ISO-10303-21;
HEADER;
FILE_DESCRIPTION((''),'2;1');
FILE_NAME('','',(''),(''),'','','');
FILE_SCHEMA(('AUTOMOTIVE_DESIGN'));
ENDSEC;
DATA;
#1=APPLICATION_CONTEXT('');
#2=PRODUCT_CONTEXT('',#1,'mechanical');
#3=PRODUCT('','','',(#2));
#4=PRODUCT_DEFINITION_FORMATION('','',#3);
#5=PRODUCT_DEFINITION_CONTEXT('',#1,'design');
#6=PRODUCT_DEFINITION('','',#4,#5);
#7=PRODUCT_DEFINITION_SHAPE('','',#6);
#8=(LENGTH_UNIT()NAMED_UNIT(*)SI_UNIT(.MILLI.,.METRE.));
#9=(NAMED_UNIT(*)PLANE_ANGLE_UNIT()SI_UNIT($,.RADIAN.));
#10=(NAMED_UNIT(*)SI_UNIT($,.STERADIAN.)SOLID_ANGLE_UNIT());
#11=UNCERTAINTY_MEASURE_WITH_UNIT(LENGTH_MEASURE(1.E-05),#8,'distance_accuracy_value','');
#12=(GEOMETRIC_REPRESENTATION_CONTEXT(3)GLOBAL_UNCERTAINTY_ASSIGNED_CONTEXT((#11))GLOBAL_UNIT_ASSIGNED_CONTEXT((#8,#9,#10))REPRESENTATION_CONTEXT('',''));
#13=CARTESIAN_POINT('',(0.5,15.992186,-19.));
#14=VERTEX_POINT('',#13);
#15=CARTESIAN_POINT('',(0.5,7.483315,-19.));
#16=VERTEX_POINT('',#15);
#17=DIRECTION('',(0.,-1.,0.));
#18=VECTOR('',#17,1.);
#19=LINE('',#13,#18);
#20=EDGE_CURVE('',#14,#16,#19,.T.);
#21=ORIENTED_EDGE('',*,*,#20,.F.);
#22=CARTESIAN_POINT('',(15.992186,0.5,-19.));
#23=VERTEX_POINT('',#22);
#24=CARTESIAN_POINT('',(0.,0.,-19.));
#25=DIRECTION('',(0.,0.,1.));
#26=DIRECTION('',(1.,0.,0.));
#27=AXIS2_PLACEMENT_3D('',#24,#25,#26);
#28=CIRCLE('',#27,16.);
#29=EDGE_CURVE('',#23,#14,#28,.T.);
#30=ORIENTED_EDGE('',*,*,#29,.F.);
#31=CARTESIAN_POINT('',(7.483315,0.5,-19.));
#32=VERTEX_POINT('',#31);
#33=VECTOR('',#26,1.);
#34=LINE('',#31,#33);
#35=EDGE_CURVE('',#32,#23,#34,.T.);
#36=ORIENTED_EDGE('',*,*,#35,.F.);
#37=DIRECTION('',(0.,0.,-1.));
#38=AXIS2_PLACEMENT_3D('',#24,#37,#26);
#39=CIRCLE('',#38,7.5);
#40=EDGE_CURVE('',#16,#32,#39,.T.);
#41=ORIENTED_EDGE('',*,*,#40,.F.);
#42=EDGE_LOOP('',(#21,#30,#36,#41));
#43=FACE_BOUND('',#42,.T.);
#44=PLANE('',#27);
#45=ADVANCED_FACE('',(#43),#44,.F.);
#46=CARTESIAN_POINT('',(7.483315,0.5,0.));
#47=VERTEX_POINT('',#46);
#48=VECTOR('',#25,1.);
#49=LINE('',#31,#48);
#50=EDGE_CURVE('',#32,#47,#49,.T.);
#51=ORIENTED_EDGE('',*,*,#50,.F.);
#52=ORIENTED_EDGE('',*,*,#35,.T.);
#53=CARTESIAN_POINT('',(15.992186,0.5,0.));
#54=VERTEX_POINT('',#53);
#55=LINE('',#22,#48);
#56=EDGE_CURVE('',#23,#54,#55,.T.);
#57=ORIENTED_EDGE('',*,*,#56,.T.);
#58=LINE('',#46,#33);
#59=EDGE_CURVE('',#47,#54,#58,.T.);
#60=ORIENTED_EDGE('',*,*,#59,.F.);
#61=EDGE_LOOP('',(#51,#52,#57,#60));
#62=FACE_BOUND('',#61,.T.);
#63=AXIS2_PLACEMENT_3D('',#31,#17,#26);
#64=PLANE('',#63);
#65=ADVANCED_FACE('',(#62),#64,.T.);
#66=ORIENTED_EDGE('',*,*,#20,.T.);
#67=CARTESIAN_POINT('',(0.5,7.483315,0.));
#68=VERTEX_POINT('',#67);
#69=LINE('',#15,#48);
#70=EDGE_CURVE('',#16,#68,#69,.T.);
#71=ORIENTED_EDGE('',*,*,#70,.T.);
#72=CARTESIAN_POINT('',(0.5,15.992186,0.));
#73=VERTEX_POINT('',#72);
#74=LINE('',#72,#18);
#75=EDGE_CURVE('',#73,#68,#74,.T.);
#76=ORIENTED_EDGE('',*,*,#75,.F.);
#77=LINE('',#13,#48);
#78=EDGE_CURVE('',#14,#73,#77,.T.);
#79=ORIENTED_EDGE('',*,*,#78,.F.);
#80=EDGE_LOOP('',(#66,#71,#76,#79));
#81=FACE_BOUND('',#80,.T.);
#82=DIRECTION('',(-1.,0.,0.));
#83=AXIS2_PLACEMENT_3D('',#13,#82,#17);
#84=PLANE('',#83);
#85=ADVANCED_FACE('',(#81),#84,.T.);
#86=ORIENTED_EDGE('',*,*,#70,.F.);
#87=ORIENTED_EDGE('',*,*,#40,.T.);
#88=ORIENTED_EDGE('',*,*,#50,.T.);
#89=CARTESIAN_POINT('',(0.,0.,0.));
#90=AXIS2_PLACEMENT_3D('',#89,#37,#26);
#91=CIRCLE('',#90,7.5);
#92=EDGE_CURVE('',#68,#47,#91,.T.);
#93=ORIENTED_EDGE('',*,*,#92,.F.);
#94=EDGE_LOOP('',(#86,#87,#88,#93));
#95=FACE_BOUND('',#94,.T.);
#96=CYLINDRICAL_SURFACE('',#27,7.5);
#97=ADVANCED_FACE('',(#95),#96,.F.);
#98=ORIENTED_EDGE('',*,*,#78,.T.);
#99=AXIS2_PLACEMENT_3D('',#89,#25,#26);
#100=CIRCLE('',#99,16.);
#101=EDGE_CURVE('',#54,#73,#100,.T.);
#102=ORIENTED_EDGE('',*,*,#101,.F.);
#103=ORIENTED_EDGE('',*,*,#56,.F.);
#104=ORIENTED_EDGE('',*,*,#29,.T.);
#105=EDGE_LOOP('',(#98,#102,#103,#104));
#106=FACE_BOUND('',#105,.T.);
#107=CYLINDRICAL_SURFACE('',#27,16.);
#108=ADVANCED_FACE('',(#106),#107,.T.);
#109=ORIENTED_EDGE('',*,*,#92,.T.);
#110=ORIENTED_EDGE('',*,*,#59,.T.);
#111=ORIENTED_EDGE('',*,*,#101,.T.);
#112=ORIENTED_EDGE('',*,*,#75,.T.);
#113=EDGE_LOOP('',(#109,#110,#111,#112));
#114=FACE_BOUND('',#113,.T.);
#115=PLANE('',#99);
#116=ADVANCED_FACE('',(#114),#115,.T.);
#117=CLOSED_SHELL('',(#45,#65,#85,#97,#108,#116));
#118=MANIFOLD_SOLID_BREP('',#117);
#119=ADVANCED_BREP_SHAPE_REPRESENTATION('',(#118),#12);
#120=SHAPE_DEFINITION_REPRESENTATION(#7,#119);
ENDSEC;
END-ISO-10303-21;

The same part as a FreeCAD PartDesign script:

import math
import FreeCAD as App
import Part
import Sketcher
from FreeCAD import Vector
Q = App.Units.Quantity

doc = App.newDocument("Part")
body = doc.addObject("PartDesign::Body", "Body")

sketch1 = body.newObject("Sketcher::SketchObject", "Sketch")
sketch1.AttachmentSupport = (doc.getObject("XY_Plane"), [""])
sketch1.MapMode = "FlatFace"
sketch1.addGeometry([
    Part.LineSegment(Vector(0, 16, 0), Vector(0, 7, 0)),
    Part.ArcOfCircle(Part.Circle(Vector(0, 0, 0), Vector(0, 0, 1), 8), math.radians(4), math.radians(86)),
    Part.LineSegment(Vector(7, 0, 0), Vector(16, 0, 0)),
    Part.ArcOfCircle(Part.Circle(Vector(0, 0, 0), Vector(0, 0, 1), 16), math.radians(2), math.radians(88)),
], False)
sketch1.addConstraint([
    Sketcher.Constraint("Coincident", 0, 2, 1, 2),
    Sketcher.Constraint("Coincident", 1, 1, 2, 1),
    Sketcher.Constraint("Coincident", 2, 2, 3, 1),
    Sketcher.Constraint("Coincident", 3, 2, 0, 1),
    Sketcher.Constraint("Vertical", 0),
    Sketcher.Constraint("Horizontal", 2),
    Sketcher.Constraint("Coincident", 1, 3, -1, 1),
    Sketcher.Constraint("Coincident", 3, 3, -1, 1),
    Sketcher.Constraint("Equal", 2, 0),
    Sketcher.Constraint("Radius", 3, Q("16 mm")),
    Sketcher.Constraint("Radius", 1, Q("7.5 mm")),
    Sketcher.Constraint("DistanceX", -1, 1, 0, 2, Q("0.5 mm")),
])
pad1 = body.newObject("PartDesign::Pad", "Pad")
pad1.Profile = sketch1
pad1.Length = 19
pad1.Reversed = True

doc.recompute()
